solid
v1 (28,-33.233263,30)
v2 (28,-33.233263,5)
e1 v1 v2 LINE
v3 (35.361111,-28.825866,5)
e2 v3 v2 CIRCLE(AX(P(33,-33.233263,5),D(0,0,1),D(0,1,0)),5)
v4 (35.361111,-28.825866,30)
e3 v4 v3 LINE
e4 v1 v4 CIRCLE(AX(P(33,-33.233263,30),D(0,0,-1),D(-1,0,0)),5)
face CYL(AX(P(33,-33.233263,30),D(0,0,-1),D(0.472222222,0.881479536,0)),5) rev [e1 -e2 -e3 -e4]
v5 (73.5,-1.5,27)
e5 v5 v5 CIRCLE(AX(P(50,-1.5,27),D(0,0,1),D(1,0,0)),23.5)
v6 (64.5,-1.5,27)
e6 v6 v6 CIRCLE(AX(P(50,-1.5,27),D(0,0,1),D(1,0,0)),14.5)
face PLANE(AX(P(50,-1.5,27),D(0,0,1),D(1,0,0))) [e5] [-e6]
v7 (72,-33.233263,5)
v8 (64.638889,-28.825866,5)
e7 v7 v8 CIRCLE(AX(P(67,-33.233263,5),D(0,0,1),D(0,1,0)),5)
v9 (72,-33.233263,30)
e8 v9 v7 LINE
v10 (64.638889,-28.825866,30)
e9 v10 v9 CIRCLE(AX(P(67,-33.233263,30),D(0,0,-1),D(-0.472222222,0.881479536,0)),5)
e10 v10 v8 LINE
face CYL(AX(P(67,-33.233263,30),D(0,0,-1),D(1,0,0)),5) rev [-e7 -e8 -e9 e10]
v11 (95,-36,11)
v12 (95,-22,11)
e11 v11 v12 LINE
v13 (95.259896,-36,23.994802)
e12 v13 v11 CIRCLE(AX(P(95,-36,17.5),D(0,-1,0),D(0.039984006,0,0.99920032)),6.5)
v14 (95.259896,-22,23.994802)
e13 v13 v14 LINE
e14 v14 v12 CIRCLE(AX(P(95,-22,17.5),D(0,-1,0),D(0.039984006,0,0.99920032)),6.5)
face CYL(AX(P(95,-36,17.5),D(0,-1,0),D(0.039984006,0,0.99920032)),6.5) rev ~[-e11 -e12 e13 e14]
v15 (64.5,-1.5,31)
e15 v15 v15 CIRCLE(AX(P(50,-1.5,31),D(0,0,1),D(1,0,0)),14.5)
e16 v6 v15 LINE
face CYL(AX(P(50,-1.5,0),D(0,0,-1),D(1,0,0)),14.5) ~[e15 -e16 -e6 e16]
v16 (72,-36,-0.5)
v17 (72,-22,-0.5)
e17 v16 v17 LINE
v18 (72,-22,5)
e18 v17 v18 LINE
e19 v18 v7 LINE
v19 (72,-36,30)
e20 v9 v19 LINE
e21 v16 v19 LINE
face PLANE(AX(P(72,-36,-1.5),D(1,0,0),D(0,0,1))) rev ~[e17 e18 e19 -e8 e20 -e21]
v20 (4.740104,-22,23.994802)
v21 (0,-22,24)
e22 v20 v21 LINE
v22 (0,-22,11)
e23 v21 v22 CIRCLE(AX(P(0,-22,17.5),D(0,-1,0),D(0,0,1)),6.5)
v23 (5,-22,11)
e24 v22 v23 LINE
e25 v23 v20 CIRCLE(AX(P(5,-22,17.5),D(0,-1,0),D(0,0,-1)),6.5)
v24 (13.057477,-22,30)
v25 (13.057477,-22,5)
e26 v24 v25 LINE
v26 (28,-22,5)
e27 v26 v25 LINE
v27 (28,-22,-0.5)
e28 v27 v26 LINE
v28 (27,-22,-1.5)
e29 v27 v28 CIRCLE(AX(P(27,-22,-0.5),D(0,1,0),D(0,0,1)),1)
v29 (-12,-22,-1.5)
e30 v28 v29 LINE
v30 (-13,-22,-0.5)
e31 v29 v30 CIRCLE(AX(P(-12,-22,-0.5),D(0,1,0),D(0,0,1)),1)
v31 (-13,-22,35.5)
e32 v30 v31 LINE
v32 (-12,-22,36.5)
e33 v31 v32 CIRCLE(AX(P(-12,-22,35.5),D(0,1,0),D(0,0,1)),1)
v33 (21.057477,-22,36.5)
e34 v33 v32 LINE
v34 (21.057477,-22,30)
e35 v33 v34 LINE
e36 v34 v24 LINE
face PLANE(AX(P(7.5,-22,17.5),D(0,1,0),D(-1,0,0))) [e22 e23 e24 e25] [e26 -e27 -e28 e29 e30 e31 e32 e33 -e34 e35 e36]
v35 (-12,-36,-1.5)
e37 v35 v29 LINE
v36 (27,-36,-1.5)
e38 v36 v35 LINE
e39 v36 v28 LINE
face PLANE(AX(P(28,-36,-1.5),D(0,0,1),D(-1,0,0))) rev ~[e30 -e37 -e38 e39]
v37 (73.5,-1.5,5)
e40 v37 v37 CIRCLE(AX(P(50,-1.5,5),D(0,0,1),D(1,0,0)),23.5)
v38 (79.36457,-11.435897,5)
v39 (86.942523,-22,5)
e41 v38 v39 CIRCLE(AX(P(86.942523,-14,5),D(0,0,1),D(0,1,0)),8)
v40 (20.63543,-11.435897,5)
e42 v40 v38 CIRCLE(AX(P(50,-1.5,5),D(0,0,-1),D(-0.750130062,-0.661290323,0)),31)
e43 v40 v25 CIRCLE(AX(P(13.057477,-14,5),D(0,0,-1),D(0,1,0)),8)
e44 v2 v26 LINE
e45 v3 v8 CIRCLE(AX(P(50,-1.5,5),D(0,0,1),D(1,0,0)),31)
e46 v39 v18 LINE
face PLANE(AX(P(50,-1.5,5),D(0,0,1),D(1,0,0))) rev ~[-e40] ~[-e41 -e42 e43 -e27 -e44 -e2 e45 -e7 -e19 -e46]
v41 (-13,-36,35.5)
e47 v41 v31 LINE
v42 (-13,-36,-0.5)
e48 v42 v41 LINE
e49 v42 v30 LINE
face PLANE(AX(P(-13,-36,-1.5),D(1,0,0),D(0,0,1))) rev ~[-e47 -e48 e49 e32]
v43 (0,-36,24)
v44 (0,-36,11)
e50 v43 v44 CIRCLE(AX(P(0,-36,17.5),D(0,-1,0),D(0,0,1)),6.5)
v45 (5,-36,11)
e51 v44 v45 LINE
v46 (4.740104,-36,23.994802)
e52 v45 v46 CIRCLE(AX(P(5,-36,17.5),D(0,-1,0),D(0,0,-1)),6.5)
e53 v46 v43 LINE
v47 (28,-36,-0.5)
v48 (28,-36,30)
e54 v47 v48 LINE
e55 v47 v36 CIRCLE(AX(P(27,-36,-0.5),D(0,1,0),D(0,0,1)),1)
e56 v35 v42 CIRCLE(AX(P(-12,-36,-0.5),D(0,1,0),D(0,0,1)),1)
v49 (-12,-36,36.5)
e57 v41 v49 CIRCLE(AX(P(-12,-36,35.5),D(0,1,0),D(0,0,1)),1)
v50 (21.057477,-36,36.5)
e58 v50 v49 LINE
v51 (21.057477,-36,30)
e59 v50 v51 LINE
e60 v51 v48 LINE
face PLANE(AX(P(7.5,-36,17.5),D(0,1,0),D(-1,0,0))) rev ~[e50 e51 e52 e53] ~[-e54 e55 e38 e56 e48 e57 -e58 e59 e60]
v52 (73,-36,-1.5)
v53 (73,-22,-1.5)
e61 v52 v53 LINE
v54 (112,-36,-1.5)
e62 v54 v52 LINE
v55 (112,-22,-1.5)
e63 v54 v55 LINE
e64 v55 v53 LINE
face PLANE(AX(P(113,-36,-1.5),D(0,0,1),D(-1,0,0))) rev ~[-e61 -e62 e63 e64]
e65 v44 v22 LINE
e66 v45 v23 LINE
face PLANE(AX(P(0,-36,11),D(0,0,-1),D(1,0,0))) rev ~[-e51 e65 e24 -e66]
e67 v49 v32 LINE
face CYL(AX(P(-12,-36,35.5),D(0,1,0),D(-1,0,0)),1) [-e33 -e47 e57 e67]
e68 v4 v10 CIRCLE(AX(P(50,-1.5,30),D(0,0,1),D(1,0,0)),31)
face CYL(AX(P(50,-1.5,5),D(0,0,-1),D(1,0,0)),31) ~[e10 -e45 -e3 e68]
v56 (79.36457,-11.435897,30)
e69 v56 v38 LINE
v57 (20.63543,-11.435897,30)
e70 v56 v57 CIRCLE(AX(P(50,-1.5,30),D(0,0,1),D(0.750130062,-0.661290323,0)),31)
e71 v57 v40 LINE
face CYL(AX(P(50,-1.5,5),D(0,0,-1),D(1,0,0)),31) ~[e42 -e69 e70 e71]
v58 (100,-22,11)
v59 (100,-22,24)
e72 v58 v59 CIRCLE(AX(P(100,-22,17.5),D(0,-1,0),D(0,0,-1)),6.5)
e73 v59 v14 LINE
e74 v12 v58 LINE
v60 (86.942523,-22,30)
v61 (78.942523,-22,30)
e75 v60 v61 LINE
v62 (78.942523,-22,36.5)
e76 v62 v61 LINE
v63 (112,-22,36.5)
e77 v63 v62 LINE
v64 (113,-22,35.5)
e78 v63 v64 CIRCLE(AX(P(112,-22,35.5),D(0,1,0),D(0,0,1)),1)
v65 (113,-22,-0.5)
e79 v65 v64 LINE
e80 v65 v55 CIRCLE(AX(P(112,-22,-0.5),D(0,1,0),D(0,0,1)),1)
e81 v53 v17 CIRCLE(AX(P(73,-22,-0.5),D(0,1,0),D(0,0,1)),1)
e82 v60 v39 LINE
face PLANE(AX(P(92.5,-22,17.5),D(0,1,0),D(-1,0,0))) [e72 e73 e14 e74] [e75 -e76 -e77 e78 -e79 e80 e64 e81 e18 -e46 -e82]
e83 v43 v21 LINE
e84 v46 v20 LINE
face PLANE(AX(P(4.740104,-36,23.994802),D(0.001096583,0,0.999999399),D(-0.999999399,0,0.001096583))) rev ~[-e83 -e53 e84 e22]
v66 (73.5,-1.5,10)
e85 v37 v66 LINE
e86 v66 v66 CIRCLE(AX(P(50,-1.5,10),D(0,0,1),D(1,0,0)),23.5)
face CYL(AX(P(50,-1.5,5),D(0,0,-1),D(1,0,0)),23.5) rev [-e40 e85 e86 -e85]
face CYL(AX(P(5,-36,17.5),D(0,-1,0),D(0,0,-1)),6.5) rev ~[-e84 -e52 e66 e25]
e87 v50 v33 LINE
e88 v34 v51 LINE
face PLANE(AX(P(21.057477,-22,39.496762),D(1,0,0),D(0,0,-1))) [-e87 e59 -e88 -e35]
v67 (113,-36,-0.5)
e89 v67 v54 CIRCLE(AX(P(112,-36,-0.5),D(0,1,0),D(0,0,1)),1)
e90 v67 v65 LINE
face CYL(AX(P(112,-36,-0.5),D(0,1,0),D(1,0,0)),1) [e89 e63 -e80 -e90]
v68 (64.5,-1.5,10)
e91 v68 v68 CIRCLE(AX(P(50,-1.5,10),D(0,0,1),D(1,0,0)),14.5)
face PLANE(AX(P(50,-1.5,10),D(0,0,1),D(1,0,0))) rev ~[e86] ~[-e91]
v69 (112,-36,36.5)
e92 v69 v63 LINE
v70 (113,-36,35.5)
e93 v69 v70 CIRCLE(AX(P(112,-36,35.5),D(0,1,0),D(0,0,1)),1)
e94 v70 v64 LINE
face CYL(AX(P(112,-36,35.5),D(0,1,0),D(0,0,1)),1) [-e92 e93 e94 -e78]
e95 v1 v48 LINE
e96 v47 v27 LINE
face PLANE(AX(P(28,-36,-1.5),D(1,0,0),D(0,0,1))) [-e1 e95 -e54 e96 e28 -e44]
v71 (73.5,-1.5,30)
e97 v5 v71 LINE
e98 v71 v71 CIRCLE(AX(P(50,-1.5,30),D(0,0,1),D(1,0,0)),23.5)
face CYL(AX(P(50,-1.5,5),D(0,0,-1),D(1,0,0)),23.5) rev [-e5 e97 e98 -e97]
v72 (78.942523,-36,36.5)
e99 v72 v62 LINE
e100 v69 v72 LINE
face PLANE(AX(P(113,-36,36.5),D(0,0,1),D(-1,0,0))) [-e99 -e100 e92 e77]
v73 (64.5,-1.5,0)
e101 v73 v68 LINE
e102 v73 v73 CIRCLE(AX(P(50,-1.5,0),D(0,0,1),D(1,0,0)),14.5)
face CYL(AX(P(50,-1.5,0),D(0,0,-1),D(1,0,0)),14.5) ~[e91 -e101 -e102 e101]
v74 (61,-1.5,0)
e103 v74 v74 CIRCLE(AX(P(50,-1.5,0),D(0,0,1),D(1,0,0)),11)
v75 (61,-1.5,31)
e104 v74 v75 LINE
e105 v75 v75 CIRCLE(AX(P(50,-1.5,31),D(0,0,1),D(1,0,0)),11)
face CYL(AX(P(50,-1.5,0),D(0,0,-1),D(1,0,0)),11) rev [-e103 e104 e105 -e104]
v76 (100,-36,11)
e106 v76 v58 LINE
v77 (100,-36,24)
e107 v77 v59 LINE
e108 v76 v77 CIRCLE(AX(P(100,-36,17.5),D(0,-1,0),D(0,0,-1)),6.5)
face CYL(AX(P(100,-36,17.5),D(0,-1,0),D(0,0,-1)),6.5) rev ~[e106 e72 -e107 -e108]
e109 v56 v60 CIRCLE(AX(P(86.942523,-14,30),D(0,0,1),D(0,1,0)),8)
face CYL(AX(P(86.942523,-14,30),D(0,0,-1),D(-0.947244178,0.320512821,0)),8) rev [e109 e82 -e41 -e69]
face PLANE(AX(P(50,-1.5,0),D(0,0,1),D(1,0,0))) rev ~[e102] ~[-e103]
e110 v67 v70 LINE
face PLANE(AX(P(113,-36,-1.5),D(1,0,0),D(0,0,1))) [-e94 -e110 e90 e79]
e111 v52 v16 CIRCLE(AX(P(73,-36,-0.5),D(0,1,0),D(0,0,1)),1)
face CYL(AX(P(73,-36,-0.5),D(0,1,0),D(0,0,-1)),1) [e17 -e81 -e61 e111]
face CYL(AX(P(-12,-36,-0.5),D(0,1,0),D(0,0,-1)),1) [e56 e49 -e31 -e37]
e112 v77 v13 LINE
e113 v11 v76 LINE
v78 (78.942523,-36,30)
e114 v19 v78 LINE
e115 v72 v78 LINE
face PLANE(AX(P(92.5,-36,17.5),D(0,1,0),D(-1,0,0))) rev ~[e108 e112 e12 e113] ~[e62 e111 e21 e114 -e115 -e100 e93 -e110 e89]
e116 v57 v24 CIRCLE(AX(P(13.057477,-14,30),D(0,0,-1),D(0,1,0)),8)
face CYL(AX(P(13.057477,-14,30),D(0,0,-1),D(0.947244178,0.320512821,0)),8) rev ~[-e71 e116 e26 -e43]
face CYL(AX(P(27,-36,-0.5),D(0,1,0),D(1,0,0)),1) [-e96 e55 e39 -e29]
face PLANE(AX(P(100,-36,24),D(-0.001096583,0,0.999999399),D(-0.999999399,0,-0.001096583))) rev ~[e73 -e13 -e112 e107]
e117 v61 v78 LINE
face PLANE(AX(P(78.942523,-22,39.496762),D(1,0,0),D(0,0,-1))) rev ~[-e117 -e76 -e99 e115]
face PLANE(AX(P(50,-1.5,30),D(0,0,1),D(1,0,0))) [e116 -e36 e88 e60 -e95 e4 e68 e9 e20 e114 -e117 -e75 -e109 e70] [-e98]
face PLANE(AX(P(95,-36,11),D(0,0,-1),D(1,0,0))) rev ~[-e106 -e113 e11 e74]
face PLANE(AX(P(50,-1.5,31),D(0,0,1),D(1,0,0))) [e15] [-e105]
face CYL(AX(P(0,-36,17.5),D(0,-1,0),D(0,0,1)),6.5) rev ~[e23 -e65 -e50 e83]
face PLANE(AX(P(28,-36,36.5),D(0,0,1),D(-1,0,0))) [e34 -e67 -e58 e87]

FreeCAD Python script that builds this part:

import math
import FreeCAD as App
import Part
import Sketcher


def edges_at(feature, points):
    """Names of the edges that pass closest to the given points."""
    edges = feature.Shape.Edges
    near = lambda p: min(range(len(edges)), key=lambda i: edges[i].distToShape(Part.Vertex(*p))[0])
    return sorted({f"Edge{near(p) + 1}" for p in points})


def add_polygon(sketch, points):
    """Adds a closed chain of lines whose ends are joined by coincident constraints."""
    first, n = sketch.GeometryCount, len(points)
    for a, b in zip(points, points[1:] + points[:1]):
        sketch.addGeometry(Part.LineSegment(App.Vector(*a, 0), App.Vector(*b, 0)), False)
    for i in range(n):
        sketch.addConstraint(Sketcher.Constraint("Coincident", first + i, 2, first + (i + 1) % n, 1))

doc = App.newDocument("Part")
params = doc.addObject("Spreadsheet::Sheet", "Params")
for row, (alias, value) in enumerate([
    ("sketch1_diameter", "29 mm"),
    ("sketch1_diameter2", "22 mm"),
    ("pad1_length", "31 mm"),
    ("sketch2_diameter", "47 mm"),
    ("sketch2_diameter2", "29 mm"),
    ("pad2_length", "17 mm"),
    ("sketch3_diameter", "62 mm"),
    ("sketch3_diameter2", "47 mm"),
    ("pad3_length", "25 mm"),
    ("sketch4_radius", "6.5 mm"),
    ("sketch4_width", "41 mm"),
    ("sketch4_width2", "5 mm"),
    ("sketch4_height", "38 mm"),
    ("pad4_length", "14 mm"),
    ("fillet_radius", "8 mm"),
    ("fillet2_radius", "5 mm"),
    ("fillet3_radius", "5 mm"),
    ("fillet4_radius", "8 mm"),
    ("fillet5_radius", "1 mm"),
    ("fillet6_radius", "1 mm"),
], start=1):
    params.set(f"A{row}", alias)
    params.set(f"B{row}", "=" + value)
    params.setAlias(f"B{row}", alias)

body = doc.addObject("PartDesign::Body", "Body")

# Sketch on XY plane
sketch1 = doc.addObject("Sketcher::SketchObject", "Sketch")
body.addObject(sketch1)
sketch1.AttachmentSupport = (doc.XY_Plane, [""])
sketch1.MapMode = "FlatFace"
sketch1.addGeometry(Part.Circle(App.Vector(50, -2, 0), App.Vector(0, 0, 1), 14), False)
sketch1.addGeometry(Part.Circle(App.Vector(50, -2, 0), App.Vector(0, 0, 1), 11), False)
sketch1.addConstraint(Sketcher.Constraint("Coincident", 1, 3, 0, 3))
sketch1.addConstraint(Sketcher.Constraint("Diameter", 0, 29.0))
sketch1.addConstraint(Sketcher.Constraint("Diameter", 1, 22.0))
sketch1.addConstraint(Sketcher.Constraint("DistanceX", -1, 1, 0, 3, 50.0))
sketch1.addConstraint(Sketcher.Constraint("DistanceY", 0, 3, -1, 1, 1.5))
sketch1.setExpression("Constraints[1]", "Params.sketch1_diameter")
sketch1.setExpression("Constraints[2]", "Params.sketch1_diameter2")
pad1 = doc.addObject("PartDesign::Pad", "Pad")
body.addObject(pad1)
pad1.Profile = sketch1
pad1.setExpression("Length", "Params.pad1_length")

# Sketch on XY plane
sketch2 = doc.addObject("Sketcher::SketchObject", "Sketch001")
body.addObject(sketch2)
sketch2.AttachmentSupport = (doc.XY_Plane, [""])
sketch2.MapMode = "FlatFace"
sketch2.AttachmentOffset = App.Placement(App.Vector(0, 0, 10), App.Rotation())
sketch2.addGeometry(Part.Circle(App.Vector(50, -2, 0), App.Vector(0, 0, 1), 24), False)
sketch2.addGeometry(Part.Circle(App.Vector(50, -2, 0), App.Vector(0, 0, 1), 14), False)
sketch2.addConstraint(Sketcher.Constraint("Coincident", 1, 3, 0, 3))
sketch2.addConstraint(Sketcher.Constraint("Diameter", 0, 47.0))
sketch2.addConstraint(Sketcher.Constraint("Diameter", 1, 29.0))
sketch2.addConstraint(Sketcher.Constraint("DistanceX", -1, 1, 0, 3, 50.0))
sketch2.addConstraint(Sketcher.Constraint("DistanceY", 0, 3, -1, 1, 1.5))
sketch2.setExpression("Constraints[1]", "Params.sketch2_diameter")
sketch2.setExpression("Constraints[2]", "Params.sketch2_diameter2")
pad2 = doc.addObject("PartDesign::Pad", "Pad001")
body.addObject(pad2)
pad2.Profile = sketch2
pad2.setExpression("Length", "Params.pad2_length")

# Sketch on XY plane
sketch3 = doc.addObject("Sketcher::SketchObject", "Sketch002")
body.addObject(sketch3)
sketch3.AttachmentSupport = (doc.XY_Plane, [""])
sketch3.MapMode = "FlatFace"
sketch3.AttachmentOffset = App.Placement(App.Vector(0, 0, 5), App.Rotation())
sketch3.addGeometry(Part.Circle(App.Vector(50, -2, 0), App.Vector(0, 0, 1), 31), False)
sketch3.addGeometry(Part.Circle(App.Vector(50, -2, 0), App.Vector(0, 0, 1), 24), False)
sketch3.addConstraint(Sketcher.Constraint("Coincident", 1, 3, 0, 3))
sketch3.addConstraint(Sketcher.Constraint("Diameter", 0, 62.0))
sketch3.addConstraint(Sketcher.Constraint("Diameter", 1, 47.0))
sketch3.addConstraint(Sketcher.Constraint("DistanceX", -1, 1, 0, 3, 50.0))
sketch3.addConstraint(Sketcher.Constraint("DistanceY", 0, 3, -1, 1, 1.5))
sketch3.setExpression("Constraints[1]", "Params.sketch3_diameter")
sketch3.setExpression("Constraints[2]", "Params.sketch3_diameter2")
pad3 = doc.addObject("PartDesign::Pad", "Pad002")
body.addObject(pad3)
pad3.Profile = sketch3
pad3.setExpression("Length", "Params.pad3_length")

# Sketch on XZ plane
sketch4 = doc.addObject("Sketcher::SketchObject", "Sketch003")
body.addObject(sketch4)
sketch4.AttachmentSupport = (doc.XZ_Plane, [""])
sketch4.MapMode = "FlatFace"
sketch4.AttachmentOffset = App.Placement(App.Vector(0, 0, 36), App.Rotation())
add_polygon(sketch4, [(28, 36.5), (28, -1.5), (-13, -1.5), (-13, 36.5)])  # lines 0-3
sketch4.addGeometry(Part.ArcOfCircle(Part.Circle(App.Vector(5, 17.5, 0), App.Vector(0, 0, 1), 6.5), math.radians(-90), math.radians(92)), False)  # 4
sketch4.addGeometry(Part.LineSegment(App.Vector(4.7, 24, 0), App.Vector(0, 24, 0)), False)  # 5
sketch4.addGeometry(Part.ArcOfCircle(Part.Circle(App.Vector(0, 17.5, 0), App.Vector(0, 0, 1), 6.5), math.radians(90), math.radians(270)), False)  # 6
sketch4.addGeometry(Part.LineSegment(App.Vector(0, 11, 0), App.Vector(5, 11, 0)), False)  # 7
add_polygon(sketch4, [(113, 36.5), (113, -1.5), (72, -1.5), (72, 36.5)])  # lines 8-11
sketch4.addGeometry(Part.ArcOfCircle(Part.Circle(App.Vector(95, 17.5, 0), App.Vector(0, 0, 1), 6.5), math.radians(88), math.radians(270)), False)  # 12
sketch4.addGeometry(Part.LineSegment(App.Vector(95, 11, 0), App.Vector(100, 11, 0)), False)  # 13
sketch4.addGeometry(Part.ArcOfCircle(Part.Circle(App.Vector(100, 17.5, 0), App.Vector(0, 0, 1), 6.5), math.radians(-90), math.radians(90)), False)  # 14
sketch4.addGeometry(Part.LineSegment(App.Vector(100, 24, 0), App.Vector(95.3, 24, 0)), False)  # 15
sketch4.addConstraint(Sketcher.Constraint("Coincident", 4, 2, 5, 1))
sketch4.addConstraint(Sketcher.Constraint("Coincident", 5, 2, 6, 1))
sketch4.addConstraint(Sketcher.Constraint("Tangent", 6, 2, 7, 1))
sketch4.addConstraint(Sketcher.Constraint("Tangent", 7, 2, 4, 1))
sketch4.addConstraint(Sketcher.Constraint("Tangent", 12, 2, 13, 1))
sketch4.addConstraint(Sketcher.Constraint("Tangent", 13, 2, 14, 1))
sketch4.addConstraint(Sketcher.Constraint("Coincident", 14, 2, 15, 1))
sketch4.addConstraint(Sketcher.Constraint("Coincident", 15, 2, 12, 1))
sketch4.addConstraint(Sketcher.Constraint("Vertical", 0))
sketch4.addConstraint(Sketcher.Constraint("Horizontal", 1))
sketch4.addConstraint(Sketcher.Constraint("Vertical", 2))
sketch4.addConstraint(Sketcher.Constraint("Horizontal", 3))
sketch4.addConstraint(Sketcher.Constraint("Horizontal", 7))
sketch4.addConstraint(Sketcher.Constraint("Vertical", 8))
sketch4.addConstraint(Sketcher.Constraint("Horizontal", 9))
sketch4.addConstraint(Sketcher.Constraint("Vertical", 10))
sketch4.addConstraint(Sketcher.Constraint("Horizontal", 11))
sketch4.addConstraint(Sketcher.Constraint("Horizontal", 13))
sketch4.addConstraint(Sketcher.Constraint("Equal", 4, 6))
sketch4.addConstraint(Sketcher.Constraint("Equal", 6, 12))
sketch4.addConstraint(Sketcher.Constraint("Equal", 12, 14))
sketch4.addConstraint(Sketcher.Constraint("PointOnObject", 6, 3, -2))
sketch4.addConstraint(Sketcher.Constraint("PointOnObject", 5, 2, -2))
sketch4.addConstraint(Sketcher.Constraint("Horizontal", 6, 3, 12, 3))
sketch4.addConstraint(Sketcher.Constraint("Horizontal", 1, 2, 8, 2))
sketch4.addConstraint(Sketcher.Constraint("Horizontal", 3, 2, 10, 2))
sketch4.addConstraint(Sketcher.Constraint("Horizontal", 4, 2, 15, 2))
sketch4.addConstraint(Sketcher.Constraint("Vertical", 13, 2, 14, 2))
sketch4.addConstraint(Sketcher.Constraint("Equal", 3, 9))
sketch4.addConstraint(Sketcher.Constraint("Equal", 7, 13))
sketch4.addConstraint(Sketcher.Constraint("Radius", 4, 6.5))
sketch4.addConstraint(Sketcher.Constraint("DistanceX", 1, 2, 1, 1, 41.0))
sketch4.addConstraint(Sketcher.Constraint("DistanceX", 7, 1, 7, 2, 5.0))
sketch4.addConstraint(Sketcher.Constraint("DistanceY", 0, 2, 0, 1, 38.0))
sketch4.addConstraint(Sketcher.Constraint("DistanceX", -1, 1, 12, 3, 95.0))
sketch4.addConstraint(Sketcher.Constraint("DistanceX", -1, 1, 0, 2, 28.0))
sketch4.addConstraint(Sketcher.Constraint("DistanceY", -1, 1, 5, 2, 24.0))
sketch4.addConstraint(Sketcher.Constraint("DistanceX", -1, 1, 8, 2, 113.0))
sketch4.addConstraint(Sketcher.Constraint("DistanceY", 0, 2, 4, 3, 19.0))
sketch4.addConstraint(Sketcher.Constraint("Distance", 5, 4.740107))
sketch4.setExpression("Constraints[38]", "Params.sketch4_radius")
sketch4.setExpression("Constraints[39]", "Params.sketch4_width")
sketch4.setExpression("Constraints[40]", "Params.sketch4_width2")
sketch4.setExpression("Constraints[41]", "Params.sketch4_height")
pad4 = doc.addObject("PartDesign::Pad", "Pad003")
body.addObject(pad4)
pad4.Profile = sketch4
pad4.setExpression("Length", "Params.pad4_length")
pad4.Reversed = True
doc.recompute()

fillet = doc.addObject("PartDesign::Fillet", "Fillet")
body.addObject(fillet)
fillet.Base = (pad4, edges_at(pad4, [(26.746, -22, 17.5)]))
fillet.setExpression("Radius", "Params.fillet_radius")
doc.recompute()

fillet2 = doc.addObject("PartDesign::Fillet", "Fillet001")
body.addObject(fillet2)
fillet2.Base = (fillet, edges_at(fillet, [(28, -23.34, 17.5)]))
fillet2.setExpression("Radius", "Params.fillet2_radius")
doc.recompute()

fillet3 = doc.addObject("PartDesign::Fillet", "Fillet002")
body.addObject(fillet3)
fillet3.Base = (fillet2, edges_at(fillet2, [(72, -23.34, 17.5)]))
fillet3.setExpression("Radius", "Params.fillet3_radius")
doc.recompute()

fillet4 = doc.addObject("PartDesign::Fillet", "Fillet003")
body.addObject(fillet4)
fillet4.Base = (fillet3, edges_at(fillet3, [(73.254, -22, 17.5)]))
fillet4.setExpression("Radius", "Params.fillet4_radius")
doc.recompute()

fillet5 = doc.addObject("PartDesign::Fillet", "Fillet004")
body.addObject(fillet5)
fillet5.Base = (fillet4, edges_at(fillet4, [
    (28, -29, 36.5),
    (28, -29, -1.5),
    (72, -29, -1.5),
    (72, -29, 36.5),
]))
fillet5.setExpression("Radius", "Params.fillet5_radius")
doc.recompute()

fillet6 = doc.addObject("PartDesign::Fillet", "Fillet005")
body.addObject(fillet6)
fillet6.Base = (fillet5, edges_at(fillet5, [
    (-13, -29, -1.5),
    (-13, -29, 36.5),
    (113, -29, 36.5),
    (113, -29, -1.5),
]))
fillet6.setExpression("Radius", "Params.fillet6_radius")

# Sketch on XZ plane
sketch5 = doc.addObject("Sketcher::SketchObject", "Sketch004")
body.addObject(sketch5)
sketch5.AttachmentSupport = (doc.XZ_Plane, [""])
sketch5.MapMode = "FlatFace"
sketch5.AttachmentOffset = App.Placement(App.Vector(0, 0, 22), App.Rotation())
add_polygon(sketch5, [(21, 30), (21, 39), (34, 39), (34, 30)])  # lines 0-3
add_polygon(sketch5, [(66, 30), (66, 39), (79, 39), (79, 30)])  # lines 4-7
sketch5.addConstraint(Sketcher.Constraint("Vertical", 0))
sketch5.addConstraint(Sketcher.Constraint("Horizontal", 1))
sketch5.addConstraint(Sketcher.Constraint("Vertical", 2))
sketch5.addConstraint(Sketcher.Constraint("Horizontal", 3))
sketch5.addConstraint(Sketcher.Constraint("Vertical", 4))
sketch5.addConstraint(Sketcher.Constraint("Horizontal", 5))
sketch5.addConstraint(Sketcher.Constraint("Vertical", 6))
sketch5.addConstraint(Sketcher.Constraint("Horizontal", 7))
sketch5.addConstraint(Sketcher.Constraint("Horizontal", 1, 2, 4, 2))
sketch5.addConstraint(Sketcher.Constraint("Horizontal", 3, 2, 6, 2))
sketch5.addConstraint(Sketcher.Constraint("Equal", 3, 5))
sketch5.addConstraint(Sketcher.Constraint("DistanceY", -1, 1, 2, 2, 30.0))
sketch5.addConstraint(Sketcher.Constraint("DistanceY", 0, 1, 0, 2, 9.496762))
sketch5.addConstraint(Sketcher.Constraint("DistanceX", 1, 1, 1, 2, 12.689774))
sketch5.addConstraint(Sketcher.Constraint("DistanceX", -1, 1, 1, 2, 33.747251))
sketch5.addConstraint(Sketcher.Constraint("DistanceX", -1, 1, 4, 2, 66.252749))
pocket1 = doc.addObject("PartDesign::Pocket", "Pocket")
body.addObject(pocket1)
pocket1.Profile = sketch5
pocket1.Type = "ThroughAll"
pocket1.Reversed = True

doc.recompute()
